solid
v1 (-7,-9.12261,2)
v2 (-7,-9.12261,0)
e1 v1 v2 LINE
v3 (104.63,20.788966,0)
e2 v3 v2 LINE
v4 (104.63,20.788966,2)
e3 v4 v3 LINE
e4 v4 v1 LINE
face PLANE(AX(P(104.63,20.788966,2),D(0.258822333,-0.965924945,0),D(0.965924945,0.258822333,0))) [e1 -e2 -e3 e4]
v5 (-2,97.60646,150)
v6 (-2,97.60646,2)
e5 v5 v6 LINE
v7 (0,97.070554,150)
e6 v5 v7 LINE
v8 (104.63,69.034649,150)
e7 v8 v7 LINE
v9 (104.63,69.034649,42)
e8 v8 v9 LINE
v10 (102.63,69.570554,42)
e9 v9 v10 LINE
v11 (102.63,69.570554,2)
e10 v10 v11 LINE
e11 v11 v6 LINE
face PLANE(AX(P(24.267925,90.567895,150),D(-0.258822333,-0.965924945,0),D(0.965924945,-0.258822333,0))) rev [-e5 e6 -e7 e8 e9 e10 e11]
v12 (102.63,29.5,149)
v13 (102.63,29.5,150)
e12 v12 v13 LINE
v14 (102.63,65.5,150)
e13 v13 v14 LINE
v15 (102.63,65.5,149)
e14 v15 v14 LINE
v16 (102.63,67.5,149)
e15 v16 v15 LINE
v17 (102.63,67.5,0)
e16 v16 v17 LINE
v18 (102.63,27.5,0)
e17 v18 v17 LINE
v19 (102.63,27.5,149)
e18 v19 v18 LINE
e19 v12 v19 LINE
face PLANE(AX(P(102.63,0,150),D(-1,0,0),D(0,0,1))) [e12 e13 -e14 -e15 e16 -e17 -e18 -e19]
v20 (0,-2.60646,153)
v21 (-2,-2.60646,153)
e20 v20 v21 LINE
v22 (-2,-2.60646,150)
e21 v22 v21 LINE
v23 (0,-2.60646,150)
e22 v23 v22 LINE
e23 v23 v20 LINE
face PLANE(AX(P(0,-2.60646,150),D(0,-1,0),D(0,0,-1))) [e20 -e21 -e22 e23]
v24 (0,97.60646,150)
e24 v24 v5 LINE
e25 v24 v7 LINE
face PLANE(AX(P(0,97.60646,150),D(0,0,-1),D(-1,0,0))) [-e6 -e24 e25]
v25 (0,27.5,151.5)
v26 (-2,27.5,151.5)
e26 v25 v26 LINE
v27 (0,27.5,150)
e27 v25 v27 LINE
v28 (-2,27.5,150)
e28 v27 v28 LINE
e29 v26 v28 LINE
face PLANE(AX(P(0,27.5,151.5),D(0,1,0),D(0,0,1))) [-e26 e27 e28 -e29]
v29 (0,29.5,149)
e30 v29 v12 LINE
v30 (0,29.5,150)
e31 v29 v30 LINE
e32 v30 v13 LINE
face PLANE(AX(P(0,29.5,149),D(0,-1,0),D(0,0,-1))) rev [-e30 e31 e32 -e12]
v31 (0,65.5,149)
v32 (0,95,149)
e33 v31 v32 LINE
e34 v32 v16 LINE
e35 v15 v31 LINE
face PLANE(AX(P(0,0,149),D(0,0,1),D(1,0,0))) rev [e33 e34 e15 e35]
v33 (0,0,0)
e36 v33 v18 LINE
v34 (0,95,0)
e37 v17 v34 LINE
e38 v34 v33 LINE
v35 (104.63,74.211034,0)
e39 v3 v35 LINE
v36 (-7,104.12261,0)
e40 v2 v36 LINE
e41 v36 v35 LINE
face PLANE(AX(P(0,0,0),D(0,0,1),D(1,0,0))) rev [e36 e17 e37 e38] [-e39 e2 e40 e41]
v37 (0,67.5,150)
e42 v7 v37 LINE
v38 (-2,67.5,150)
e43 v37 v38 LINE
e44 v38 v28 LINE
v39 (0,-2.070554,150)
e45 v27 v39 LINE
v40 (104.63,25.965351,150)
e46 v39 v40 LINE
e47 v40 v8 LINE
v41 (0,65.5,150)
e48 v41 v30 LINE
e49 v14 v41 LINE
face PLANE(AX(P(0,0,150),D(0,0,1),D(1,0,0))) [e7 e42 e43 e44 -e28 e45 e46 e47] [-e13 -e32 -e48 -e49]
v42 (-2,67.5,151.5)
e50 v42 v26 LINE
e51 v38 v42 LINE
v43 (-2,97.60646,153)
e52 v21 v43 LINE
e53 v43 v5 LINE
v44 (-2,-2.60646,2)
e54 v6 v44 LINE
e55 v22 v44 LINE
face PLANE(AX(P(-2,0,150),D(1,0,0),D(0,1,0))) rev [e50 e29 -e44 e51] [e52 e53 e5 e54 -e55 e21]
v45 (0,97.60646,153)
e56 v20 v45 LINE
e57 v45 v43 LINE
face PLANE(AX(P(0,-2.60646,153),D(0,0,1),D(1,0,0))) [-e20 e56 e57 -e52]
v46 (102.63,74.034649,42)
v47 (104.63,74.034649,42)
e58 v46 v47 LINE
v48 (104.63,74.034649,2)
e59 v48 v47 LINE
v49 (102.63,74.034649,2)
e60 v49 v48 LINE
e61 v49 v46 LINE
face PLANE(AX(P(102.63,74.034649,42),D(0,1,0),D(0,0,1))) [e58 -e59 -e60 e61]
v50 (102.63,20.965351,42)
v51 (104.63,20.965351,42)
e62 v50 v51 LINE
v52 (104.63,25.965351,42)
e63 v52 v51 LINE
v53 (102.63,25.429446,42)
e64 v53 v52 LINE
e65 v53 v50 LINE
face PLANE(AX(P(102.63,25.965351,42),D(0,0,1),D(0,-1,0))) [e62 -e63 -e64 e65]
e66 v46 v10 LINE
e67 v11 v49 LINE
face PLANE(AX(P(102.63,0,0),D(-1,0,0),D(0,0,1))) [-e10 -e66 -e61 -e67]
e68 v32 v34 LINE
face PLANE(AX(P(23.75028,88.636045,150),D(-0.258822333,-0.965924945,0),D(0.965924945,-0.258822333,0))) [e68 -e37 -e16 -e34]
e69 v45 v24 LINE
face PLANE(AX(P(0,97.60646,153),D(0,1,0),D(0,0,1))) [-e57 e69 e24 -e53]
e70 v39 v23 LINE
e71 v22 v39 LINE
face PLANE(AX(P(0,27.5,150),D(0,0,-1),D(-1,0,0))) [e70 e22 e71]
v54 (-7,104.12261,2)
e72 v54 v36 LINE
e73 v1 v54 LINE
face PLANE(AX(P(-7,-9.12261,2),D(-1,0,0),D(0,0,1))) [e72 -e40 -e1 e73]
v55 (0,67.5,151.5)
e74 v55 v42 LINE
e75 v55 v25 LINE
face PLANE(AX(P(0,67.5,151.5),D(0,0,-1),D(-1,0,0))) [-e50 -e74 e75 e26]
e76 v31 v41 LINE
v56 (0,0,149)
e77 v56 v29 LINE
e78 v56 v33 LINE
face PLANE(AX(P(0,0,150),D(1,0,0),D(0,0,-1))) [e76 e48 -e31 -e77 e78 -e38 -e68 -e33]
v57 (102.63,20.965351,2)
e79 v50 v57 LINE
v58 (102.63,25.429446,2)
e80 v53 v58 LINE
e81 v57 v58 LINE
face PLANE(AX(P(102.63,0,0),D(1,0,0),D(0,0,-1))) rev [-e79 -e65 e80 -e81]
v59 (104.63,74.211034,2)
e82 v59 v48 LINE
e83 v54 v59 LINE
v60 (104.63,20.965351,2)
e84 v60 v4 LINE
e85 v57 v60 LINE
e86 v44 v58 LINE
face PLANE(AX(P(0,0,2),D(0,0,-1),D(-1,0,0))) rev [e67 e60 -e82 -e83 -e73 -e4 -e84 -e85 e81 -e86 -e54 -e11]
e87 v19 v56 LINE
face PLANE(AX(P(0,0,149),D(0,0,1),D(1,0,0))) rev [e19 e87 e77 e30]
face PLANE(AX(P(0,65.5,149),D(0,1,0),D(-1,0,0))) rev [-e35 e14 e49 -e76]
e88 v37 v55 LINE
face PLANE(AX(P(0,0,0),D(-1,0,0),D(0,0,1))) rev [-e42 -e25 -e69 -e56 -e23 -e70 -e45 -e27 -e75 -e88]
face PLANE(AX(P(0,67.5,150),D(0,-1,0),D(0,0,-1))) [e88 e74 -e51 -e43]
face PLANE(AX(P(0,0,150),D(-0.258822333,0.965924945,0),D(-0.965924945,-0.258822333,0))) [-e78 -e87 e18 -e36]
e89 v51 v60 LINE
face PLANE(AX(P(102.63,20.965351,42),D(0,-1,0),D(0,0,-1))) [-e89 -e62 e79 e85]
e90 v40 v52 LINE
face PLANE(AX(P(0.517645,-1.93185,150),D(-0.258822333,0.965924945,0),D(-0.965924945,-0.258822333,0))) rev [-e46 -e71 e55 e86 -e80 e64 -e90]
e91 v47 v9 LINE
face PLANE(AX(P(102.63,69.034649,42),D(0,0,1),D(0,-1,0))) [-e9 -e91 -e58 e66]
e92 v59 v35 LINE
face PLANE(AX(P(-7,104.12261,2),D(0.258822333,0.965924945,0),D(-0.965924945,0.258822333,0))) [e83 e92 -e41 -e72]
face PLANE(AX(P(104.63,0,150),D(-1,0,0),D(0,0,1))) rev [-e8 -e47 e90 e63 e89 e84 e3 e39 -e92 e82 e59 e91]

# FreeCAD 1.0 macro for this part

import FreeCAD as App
import Part
import Sketcher

V = App.Vector
Q = App.Units.Quantity


def add_polygon(sketch, points):
    """Adds a closed chain of lines whose ends are joined by coincident constraints."""
    first, n = sketch.GeometryCount, len(points)
    for a, b in zip(points, points[1:] + points[:1]):
        sketch.addGeometry(Part.LineSegment(App.Vector(*a, 0), App.Vector(*b, 0)), False)
    for i in range(n):
        sketch.addConstraint(Sketcher.Constraint("Coincident", first + i, 2, first + (i + 1) % n, 1))

doc = App.newDocument("Part")
body = doc.addObject("PartDesign::Body", "Body")

# Sketch on XY plane
sketch1 = body.newObject("Sketcher::SketchObject", "Sketch")
sketch1.AttachmentSupport = (doc.getObject("XY_Plane"), [""])
sketch1.MapMode = "FlatFace"
add_polygon(sketch1, [(104.63, 25.965351), (104.63, 69.034649), (-2, 97.60646), (-2, -2.60646)])  # lines 0-3
add_polygon(sketch1, [(0, 95), (102.63, 67.5), (102.63, 27.5), (0, 0)])  # lines 4-7
sketch1.addConstraint(Sketcher.Constraint("Vertical", 0))
sketch1.addConstraint(Sketcher.Constraint("Vertical", 2))
sketch1.addConstraint(Sketcher.Constraint("Vertical", 5))
sketch1.addConstraint(Sketcher.Constraint("Vertical", 7))
sketch1.addConstraint(Sketcher.Constraint("Coincident", 6, 2, -1, 1))
sketch1.addConstraint(Sketcher.Constraint("Parallel", 1, 4))
sketch1.addConstraint(Sketcher.Constraint("Parallel", 3, 6))
sketch1.addConstraint(Sketcher.Constraint("Equal", 1, 3))
sketch1.addConstraint(Sketcher.Constraint("DistanceY", 5, 2, 5, 1, Q("40 mm")))
sketch1.addConstraint(Sketcher.Constraint("DistanceY", 7, 1, 7, 2, Q("95 mm")))
sketch1.addConstraint(Sketcher.Constraint("DistanceX", 1, 2, -1, 1, Q("2 mm")))
sketch1.addConstraint(Sketcher.Constraint("DistanceX", 4, 2, 0, 2, Q("2 mm")))
sketch1.addConstraint(Sketcher.Constraint("DistanceX", -1, 1, 0, 2, Q("104.63 mm")))
sketch1.addConstraint(Sketcher.Constraint("DistanceY", 2, 2, 2, 1, Q("100.21292 mm")))
sketch1.addConstraint(Sketcher.Constraint("DistanceY", -1, 1, 0, 2, Q("69.034649 mm")))
pad1 = body.newObject("PartDesign::Pad", "Pad")
pad1.Profile = sketch1
pad1.Length = 150
body2 = doc.addObject("PartDesign::Body", "Body001")

# Sketch on XY plane
sketch2 = body2.newObject("Sketcher::SketchObject", "Sketch001")
sketch2.AttachmentSupport = (doc.getObject("XY_Plane001"), [""])
sketch2.MapMode = "FlatFace"
sketch2.AttachmentOffset = App.Placement(V(0, 0, 150), App.Rotation())
add_polygon(sketch2, [(0, 65.5), (102.63, 65.5), (102.63, 67.5), (0, 95)])  # lines 0-3
sketch2.addConstraint(Sketcher.Constraint("Horizontal", 0))
sketch2.addConstraint(Sketcher.Constraint("Vertical", 1))
sketch2.addConstraint(Sketcher.Constraint("Vertical", 3))
sketch2.addConstraint(Sketcher.Constraint("PointOnObject", 2, 2, -2))
sketch2.addConstraint(Sketcher.Constraint("DistanceY", 1, 1, 1, 2, Q("2 mm")))
sketch2.addConstraint(Sketcher.Constraint("DistanceY", 3, 2, 3, 1, Q("29.5 mm")))
sketch2.addConstraint(Sketcher.Constraint("DistanceY", -1, 1, 2, 2, Q("95 mm")))
sketch2.addConstraint(Sketcher.Constraint("DistanceX", 0, 1, 0, 2, Q("102.63 mm")))
pad2 = body2.newObject("PartDesign::Pad", "Pad001")
pad2.Profile = sketch2
pad2.Length = 1
pad2.Reversed = True
body3 = doc.addObject("PartDesign::Body", "Body002")

# Sketch on XY plane
sketch3 = body3.newObject("Sketcher::SketchObject", "Sketch002")
sketch3.AttachmentSupport = (doc.getObject("XY_Plane002"), [""])
sketch3.MapMode = "FlatFace"
sketch3.AttachmentOffset = App.Placement(V(0, 0, 150), App.Rotation())
add_polygon(sketch3, [(102.63, 27.5), (102.63, 29.5), (0, 29.5), (0, 0)])  # lines 0-3
sketch3.addConstraint(Sketcher.Constraint("Vertical", 0))
sketch3.addConstraint(Sketcher.Constraint("Horizontal", 1))
sketch3.addConstraint(Sketcher.Constraint("Vertical", 2))
sketch3.addConstraint(Sketcher.Constraint("Coincident", 2, 2, -1, 1))
sketch3.addConstraint(Sketcher.Constraint("DistanceY", 0, 1, 0, 2, Q("2 mm")))
sketch3.addConstraint(Sketcher.Constraint("DistanceY", 2, 2, 2, 1, Q("29.5 mm")))
sketch3.addConstraint(Sketcher.Constraint("DistanceX", 1, 2, 1, 1, Q("102.63 mm")))
pad3 = body3.newObject("PartDesign::Pad", "Pad002")
pad3.Profile = sketch3
pad3.Length = 1
pad3.Reversed = True
doc.recompute()

boolean = body.newObject("PartDesign::Boolean", "Boolean")
boolean.Type = "Fuse"
boolean.addObjects([body2])
doc.recompute()

boolean2 = body.newObject("PartDesign::Boolean", "Boolean001")
boolean2.Type = "Fuse"
boolean2.addObjects([body3])

# Sketch on YZ plane
sketch4 = body.newObject("Sketcher::SketchObject", "Sketch003")
sketch4.AttachmentSupport = (doc.getObject("YZ_Plane"), [""])
sketch4.MapMode = "FlatFace"
sketch4.AttachmentOffset = App.Placement(V(0, 0, -2), App.Rotation())
add_polygon(sketch4, [(67.5, 150), (67.5, 151.5), (27.5, 151.5), (27.5, 150), (-2.60646, 150), (-2.60646, 153), (97.60646, 153), (97.60646, 150)])  # lines 0-7
sketch4.addConstraint(Sketcher.Constraint("Vertical", 0))
sketch4.addConstraint(Sketcher.Constraint("Horizontal", 1))
sketch4.addConstraint(Sketcher.Constraint("Vertical", 2))
sketch4.addConstraint(Sketcher.Constraint("Horizontal", 3))
sketch4.addConstraint(Sketcher.Constraint("Vertical", 4))
sketch4.addConstraint(Sketcher.Constraint("Horizontal", 5))
sketch4.addConstraint(Sketcher.Constraint("Vertical", 6))
sketch4.addConstraint(Sketcher.Constraint("Horizontal", 7))
sketch4.addConstraint(Sketcher.Constraint("Horizontal", 3, 2, 6, 2))
sketch4.addConstraint(Sketcher.Constraint("Equal", 3, 7))
sketch4.addConstraint(Sketcher.Constraint("DistanceX", 1, 2, 1, 1, Q("40 mm")))
sketch4.addConstraint(Sketcher.Constraint("DistanceY", 4, 1, 4, 2, Q("3 mm")))
sketch4.addConstraint(Sketcher.Constraint("DistanceY", 0, 1, 0, 2, Q("1.5 mm")))
sketch4.addConstraint(Sketcher.Constraint("DistanceY", -1, 1, 2, 2, Q("150 mm")))
sketch4.addConstraint(Sketcher.Constraint("DistanceX", -1, 1, 0, 2, Q("67.5 mm")))
sketch4.addConstraint(Sketcher.Constraint("DistanceX", 3, 2, 3, 1, Q("30.10646 mm")))
pad4 = body.newObject("PartDesign::Pad", "Pad003")
pad4.Profile = sketch4
pad4.Length = 2

# Sketch on XY plane
sketch5 = body.newObject("Sketcher::SketchObject", "Sketch004")
sketch5.AttachmentSupport = (doc.getObject("XY_Plane"), [""])
sketch5.MapMode = "FlatFace"
add_polygon(sketch5, [(104.63, 20.788966), (-7, -9.12261), (-7, 104.12261), (104.63, 74.211034), (104.63, 69.034649), (-2, 97.60646), (-2, -2.60646), (104.63, 25.965351)])  # lines 0-7
sketch5.addConstraint(Sketcher.Constraint("Vertical", 1))
sketch5.addConstraint(Sketcher.Constraint("Vertical", 3))
sketch5.addConstraint(Sketcher.Constraint("Vertical", 5))
sketch5.addConstraint(Sketcher.Constraint("Vertical", 7))
sketch5.addConstraint(Sketcher.Constraint("Parallel", 2, 4))
sketch5.addConstraint(Sketcher.Constraint("Parallel", 0, 6))
sketch5.addConstraint(Sketcher.Constraint("Vertical", 3, 2, 6, 2))
sketch5.addConstraint(Sketcher.Constraint("Equal", 3, 7))
sketch5.addConstraint(Sketcher.Constraint("Equal", 0, 2))
sketch5.addConstraint(Sketcher.Constraint("DistanceX", 0, 2, -1, 1, Q("7 mm")))
sketch5.addConstraint(Sketcher.Constraint("DistanceX", 4, 2, -1, 1, Q("2 mm")))
sketch5.addConstraint(Sketcher.Constraint("DistanceX", -1, 1, 2, 2, Q("104.63 mm")))
sketch5.addConstraint(Sketcher.Constraint("Distance", 4, Q("110.3916 mm")))
sketch5.addConstraint(Sketcher.Constraint("DistanceY", 1, 1, 1, 2, Q("113.24522 mm")))
sketch5.addConstraint(Sketcher.Constraint("DistanceY", 5, 2, 5, 1, Q("100.21292 mm")))
sketch5.addConstraint(Sketcher.Constraint("DistanceY", 0, 2, -1, 1, Q("9.12261 mm")))
pad5 = body.newObject("PartDesign::Pad", "Pad004")
pad5.Profile = sketch5
pad5.Length = 2

# Sketch on YZ plane
sketch6 = body.newObject("Sketcher::SketchObject", "Sketch005")
sketch6.AttachmentSupport = (doc.getObject("YZ_Plane"), [""])
sketch6.MapMode = "FlatFace"
sketch6.AttachmentOffset = App.Placement(V(0, 0, 104.63), App.Rotation())
add_polygon(sketch6, [(74.034649, 42), (69.034649, 42), (69.034649, 2), (74.034649, 2)])  # lines 0-3
add_polygon(sketch6, [(25.965351, 42), (20.965351, 42), (20.965351, 2), (25.965351, 2)])  # lines 4-7
sketch6.addConstraint(Sketcher.Constraint("Horizontal", 0))
sketch6.addConstraint(Sketcher.Constraint("Vertical", 1))
sketch6.addConstraint(Sketcher.Constraint("Horizontal", 2))
sketch6.addConstraint(Sketcher.Constraint("Vertical", 3))
sketch6.addConstraint(Sketcher.Constraint("Horizontal", 4))
sketch6.addConstraint(Sketcher.Constraint("Vertical", 5))
sketch6.addConstraint(Sketcher.Constraint("Horizontal", 6))
sketch6.addConstraint(Sketcher.Constraint("Vertical", 7))
sketch6.addConstraint(Sketcher.Constraint("Horizontal", 3, 2, 4, 2))
sketch6.addConstraint(Sketcher.Constraint("Horizontal", 2, 2, 5, 2))
sketch6.addConstraint(Sketcher.Constraint("Equal", 2, 4))
sketch6.addConstraint(Sketcher.Constraint("DistanceX", 0, 2, 0, 1, Q("5 mm")))
sketch6.addConstraint(Sketcher.Constraint("DistanceY", 1, 2, 1, 1, Q("40 mm")))
sketch6.addConstraint(Sketcher.Constraint("DistanceY", -1, 1, 0, 2, Q("42 mm")))
sketch6.addConstraint(Sketcher.Constraint("DistanceX", -1, 1, 0, 2, Q("69.034649 mm")))
sketch6.addConstraint(Sketcher.Constraint("DistanceX", -1, 1, 4, 2, Q("20.965351 mm")))
pad6 = body.newObject("PartDesign::Pad", "Pad005")
pad6.Profile = sketch6
pad6.Length = 2
pad6.Reversed = True

doc.recompute()
